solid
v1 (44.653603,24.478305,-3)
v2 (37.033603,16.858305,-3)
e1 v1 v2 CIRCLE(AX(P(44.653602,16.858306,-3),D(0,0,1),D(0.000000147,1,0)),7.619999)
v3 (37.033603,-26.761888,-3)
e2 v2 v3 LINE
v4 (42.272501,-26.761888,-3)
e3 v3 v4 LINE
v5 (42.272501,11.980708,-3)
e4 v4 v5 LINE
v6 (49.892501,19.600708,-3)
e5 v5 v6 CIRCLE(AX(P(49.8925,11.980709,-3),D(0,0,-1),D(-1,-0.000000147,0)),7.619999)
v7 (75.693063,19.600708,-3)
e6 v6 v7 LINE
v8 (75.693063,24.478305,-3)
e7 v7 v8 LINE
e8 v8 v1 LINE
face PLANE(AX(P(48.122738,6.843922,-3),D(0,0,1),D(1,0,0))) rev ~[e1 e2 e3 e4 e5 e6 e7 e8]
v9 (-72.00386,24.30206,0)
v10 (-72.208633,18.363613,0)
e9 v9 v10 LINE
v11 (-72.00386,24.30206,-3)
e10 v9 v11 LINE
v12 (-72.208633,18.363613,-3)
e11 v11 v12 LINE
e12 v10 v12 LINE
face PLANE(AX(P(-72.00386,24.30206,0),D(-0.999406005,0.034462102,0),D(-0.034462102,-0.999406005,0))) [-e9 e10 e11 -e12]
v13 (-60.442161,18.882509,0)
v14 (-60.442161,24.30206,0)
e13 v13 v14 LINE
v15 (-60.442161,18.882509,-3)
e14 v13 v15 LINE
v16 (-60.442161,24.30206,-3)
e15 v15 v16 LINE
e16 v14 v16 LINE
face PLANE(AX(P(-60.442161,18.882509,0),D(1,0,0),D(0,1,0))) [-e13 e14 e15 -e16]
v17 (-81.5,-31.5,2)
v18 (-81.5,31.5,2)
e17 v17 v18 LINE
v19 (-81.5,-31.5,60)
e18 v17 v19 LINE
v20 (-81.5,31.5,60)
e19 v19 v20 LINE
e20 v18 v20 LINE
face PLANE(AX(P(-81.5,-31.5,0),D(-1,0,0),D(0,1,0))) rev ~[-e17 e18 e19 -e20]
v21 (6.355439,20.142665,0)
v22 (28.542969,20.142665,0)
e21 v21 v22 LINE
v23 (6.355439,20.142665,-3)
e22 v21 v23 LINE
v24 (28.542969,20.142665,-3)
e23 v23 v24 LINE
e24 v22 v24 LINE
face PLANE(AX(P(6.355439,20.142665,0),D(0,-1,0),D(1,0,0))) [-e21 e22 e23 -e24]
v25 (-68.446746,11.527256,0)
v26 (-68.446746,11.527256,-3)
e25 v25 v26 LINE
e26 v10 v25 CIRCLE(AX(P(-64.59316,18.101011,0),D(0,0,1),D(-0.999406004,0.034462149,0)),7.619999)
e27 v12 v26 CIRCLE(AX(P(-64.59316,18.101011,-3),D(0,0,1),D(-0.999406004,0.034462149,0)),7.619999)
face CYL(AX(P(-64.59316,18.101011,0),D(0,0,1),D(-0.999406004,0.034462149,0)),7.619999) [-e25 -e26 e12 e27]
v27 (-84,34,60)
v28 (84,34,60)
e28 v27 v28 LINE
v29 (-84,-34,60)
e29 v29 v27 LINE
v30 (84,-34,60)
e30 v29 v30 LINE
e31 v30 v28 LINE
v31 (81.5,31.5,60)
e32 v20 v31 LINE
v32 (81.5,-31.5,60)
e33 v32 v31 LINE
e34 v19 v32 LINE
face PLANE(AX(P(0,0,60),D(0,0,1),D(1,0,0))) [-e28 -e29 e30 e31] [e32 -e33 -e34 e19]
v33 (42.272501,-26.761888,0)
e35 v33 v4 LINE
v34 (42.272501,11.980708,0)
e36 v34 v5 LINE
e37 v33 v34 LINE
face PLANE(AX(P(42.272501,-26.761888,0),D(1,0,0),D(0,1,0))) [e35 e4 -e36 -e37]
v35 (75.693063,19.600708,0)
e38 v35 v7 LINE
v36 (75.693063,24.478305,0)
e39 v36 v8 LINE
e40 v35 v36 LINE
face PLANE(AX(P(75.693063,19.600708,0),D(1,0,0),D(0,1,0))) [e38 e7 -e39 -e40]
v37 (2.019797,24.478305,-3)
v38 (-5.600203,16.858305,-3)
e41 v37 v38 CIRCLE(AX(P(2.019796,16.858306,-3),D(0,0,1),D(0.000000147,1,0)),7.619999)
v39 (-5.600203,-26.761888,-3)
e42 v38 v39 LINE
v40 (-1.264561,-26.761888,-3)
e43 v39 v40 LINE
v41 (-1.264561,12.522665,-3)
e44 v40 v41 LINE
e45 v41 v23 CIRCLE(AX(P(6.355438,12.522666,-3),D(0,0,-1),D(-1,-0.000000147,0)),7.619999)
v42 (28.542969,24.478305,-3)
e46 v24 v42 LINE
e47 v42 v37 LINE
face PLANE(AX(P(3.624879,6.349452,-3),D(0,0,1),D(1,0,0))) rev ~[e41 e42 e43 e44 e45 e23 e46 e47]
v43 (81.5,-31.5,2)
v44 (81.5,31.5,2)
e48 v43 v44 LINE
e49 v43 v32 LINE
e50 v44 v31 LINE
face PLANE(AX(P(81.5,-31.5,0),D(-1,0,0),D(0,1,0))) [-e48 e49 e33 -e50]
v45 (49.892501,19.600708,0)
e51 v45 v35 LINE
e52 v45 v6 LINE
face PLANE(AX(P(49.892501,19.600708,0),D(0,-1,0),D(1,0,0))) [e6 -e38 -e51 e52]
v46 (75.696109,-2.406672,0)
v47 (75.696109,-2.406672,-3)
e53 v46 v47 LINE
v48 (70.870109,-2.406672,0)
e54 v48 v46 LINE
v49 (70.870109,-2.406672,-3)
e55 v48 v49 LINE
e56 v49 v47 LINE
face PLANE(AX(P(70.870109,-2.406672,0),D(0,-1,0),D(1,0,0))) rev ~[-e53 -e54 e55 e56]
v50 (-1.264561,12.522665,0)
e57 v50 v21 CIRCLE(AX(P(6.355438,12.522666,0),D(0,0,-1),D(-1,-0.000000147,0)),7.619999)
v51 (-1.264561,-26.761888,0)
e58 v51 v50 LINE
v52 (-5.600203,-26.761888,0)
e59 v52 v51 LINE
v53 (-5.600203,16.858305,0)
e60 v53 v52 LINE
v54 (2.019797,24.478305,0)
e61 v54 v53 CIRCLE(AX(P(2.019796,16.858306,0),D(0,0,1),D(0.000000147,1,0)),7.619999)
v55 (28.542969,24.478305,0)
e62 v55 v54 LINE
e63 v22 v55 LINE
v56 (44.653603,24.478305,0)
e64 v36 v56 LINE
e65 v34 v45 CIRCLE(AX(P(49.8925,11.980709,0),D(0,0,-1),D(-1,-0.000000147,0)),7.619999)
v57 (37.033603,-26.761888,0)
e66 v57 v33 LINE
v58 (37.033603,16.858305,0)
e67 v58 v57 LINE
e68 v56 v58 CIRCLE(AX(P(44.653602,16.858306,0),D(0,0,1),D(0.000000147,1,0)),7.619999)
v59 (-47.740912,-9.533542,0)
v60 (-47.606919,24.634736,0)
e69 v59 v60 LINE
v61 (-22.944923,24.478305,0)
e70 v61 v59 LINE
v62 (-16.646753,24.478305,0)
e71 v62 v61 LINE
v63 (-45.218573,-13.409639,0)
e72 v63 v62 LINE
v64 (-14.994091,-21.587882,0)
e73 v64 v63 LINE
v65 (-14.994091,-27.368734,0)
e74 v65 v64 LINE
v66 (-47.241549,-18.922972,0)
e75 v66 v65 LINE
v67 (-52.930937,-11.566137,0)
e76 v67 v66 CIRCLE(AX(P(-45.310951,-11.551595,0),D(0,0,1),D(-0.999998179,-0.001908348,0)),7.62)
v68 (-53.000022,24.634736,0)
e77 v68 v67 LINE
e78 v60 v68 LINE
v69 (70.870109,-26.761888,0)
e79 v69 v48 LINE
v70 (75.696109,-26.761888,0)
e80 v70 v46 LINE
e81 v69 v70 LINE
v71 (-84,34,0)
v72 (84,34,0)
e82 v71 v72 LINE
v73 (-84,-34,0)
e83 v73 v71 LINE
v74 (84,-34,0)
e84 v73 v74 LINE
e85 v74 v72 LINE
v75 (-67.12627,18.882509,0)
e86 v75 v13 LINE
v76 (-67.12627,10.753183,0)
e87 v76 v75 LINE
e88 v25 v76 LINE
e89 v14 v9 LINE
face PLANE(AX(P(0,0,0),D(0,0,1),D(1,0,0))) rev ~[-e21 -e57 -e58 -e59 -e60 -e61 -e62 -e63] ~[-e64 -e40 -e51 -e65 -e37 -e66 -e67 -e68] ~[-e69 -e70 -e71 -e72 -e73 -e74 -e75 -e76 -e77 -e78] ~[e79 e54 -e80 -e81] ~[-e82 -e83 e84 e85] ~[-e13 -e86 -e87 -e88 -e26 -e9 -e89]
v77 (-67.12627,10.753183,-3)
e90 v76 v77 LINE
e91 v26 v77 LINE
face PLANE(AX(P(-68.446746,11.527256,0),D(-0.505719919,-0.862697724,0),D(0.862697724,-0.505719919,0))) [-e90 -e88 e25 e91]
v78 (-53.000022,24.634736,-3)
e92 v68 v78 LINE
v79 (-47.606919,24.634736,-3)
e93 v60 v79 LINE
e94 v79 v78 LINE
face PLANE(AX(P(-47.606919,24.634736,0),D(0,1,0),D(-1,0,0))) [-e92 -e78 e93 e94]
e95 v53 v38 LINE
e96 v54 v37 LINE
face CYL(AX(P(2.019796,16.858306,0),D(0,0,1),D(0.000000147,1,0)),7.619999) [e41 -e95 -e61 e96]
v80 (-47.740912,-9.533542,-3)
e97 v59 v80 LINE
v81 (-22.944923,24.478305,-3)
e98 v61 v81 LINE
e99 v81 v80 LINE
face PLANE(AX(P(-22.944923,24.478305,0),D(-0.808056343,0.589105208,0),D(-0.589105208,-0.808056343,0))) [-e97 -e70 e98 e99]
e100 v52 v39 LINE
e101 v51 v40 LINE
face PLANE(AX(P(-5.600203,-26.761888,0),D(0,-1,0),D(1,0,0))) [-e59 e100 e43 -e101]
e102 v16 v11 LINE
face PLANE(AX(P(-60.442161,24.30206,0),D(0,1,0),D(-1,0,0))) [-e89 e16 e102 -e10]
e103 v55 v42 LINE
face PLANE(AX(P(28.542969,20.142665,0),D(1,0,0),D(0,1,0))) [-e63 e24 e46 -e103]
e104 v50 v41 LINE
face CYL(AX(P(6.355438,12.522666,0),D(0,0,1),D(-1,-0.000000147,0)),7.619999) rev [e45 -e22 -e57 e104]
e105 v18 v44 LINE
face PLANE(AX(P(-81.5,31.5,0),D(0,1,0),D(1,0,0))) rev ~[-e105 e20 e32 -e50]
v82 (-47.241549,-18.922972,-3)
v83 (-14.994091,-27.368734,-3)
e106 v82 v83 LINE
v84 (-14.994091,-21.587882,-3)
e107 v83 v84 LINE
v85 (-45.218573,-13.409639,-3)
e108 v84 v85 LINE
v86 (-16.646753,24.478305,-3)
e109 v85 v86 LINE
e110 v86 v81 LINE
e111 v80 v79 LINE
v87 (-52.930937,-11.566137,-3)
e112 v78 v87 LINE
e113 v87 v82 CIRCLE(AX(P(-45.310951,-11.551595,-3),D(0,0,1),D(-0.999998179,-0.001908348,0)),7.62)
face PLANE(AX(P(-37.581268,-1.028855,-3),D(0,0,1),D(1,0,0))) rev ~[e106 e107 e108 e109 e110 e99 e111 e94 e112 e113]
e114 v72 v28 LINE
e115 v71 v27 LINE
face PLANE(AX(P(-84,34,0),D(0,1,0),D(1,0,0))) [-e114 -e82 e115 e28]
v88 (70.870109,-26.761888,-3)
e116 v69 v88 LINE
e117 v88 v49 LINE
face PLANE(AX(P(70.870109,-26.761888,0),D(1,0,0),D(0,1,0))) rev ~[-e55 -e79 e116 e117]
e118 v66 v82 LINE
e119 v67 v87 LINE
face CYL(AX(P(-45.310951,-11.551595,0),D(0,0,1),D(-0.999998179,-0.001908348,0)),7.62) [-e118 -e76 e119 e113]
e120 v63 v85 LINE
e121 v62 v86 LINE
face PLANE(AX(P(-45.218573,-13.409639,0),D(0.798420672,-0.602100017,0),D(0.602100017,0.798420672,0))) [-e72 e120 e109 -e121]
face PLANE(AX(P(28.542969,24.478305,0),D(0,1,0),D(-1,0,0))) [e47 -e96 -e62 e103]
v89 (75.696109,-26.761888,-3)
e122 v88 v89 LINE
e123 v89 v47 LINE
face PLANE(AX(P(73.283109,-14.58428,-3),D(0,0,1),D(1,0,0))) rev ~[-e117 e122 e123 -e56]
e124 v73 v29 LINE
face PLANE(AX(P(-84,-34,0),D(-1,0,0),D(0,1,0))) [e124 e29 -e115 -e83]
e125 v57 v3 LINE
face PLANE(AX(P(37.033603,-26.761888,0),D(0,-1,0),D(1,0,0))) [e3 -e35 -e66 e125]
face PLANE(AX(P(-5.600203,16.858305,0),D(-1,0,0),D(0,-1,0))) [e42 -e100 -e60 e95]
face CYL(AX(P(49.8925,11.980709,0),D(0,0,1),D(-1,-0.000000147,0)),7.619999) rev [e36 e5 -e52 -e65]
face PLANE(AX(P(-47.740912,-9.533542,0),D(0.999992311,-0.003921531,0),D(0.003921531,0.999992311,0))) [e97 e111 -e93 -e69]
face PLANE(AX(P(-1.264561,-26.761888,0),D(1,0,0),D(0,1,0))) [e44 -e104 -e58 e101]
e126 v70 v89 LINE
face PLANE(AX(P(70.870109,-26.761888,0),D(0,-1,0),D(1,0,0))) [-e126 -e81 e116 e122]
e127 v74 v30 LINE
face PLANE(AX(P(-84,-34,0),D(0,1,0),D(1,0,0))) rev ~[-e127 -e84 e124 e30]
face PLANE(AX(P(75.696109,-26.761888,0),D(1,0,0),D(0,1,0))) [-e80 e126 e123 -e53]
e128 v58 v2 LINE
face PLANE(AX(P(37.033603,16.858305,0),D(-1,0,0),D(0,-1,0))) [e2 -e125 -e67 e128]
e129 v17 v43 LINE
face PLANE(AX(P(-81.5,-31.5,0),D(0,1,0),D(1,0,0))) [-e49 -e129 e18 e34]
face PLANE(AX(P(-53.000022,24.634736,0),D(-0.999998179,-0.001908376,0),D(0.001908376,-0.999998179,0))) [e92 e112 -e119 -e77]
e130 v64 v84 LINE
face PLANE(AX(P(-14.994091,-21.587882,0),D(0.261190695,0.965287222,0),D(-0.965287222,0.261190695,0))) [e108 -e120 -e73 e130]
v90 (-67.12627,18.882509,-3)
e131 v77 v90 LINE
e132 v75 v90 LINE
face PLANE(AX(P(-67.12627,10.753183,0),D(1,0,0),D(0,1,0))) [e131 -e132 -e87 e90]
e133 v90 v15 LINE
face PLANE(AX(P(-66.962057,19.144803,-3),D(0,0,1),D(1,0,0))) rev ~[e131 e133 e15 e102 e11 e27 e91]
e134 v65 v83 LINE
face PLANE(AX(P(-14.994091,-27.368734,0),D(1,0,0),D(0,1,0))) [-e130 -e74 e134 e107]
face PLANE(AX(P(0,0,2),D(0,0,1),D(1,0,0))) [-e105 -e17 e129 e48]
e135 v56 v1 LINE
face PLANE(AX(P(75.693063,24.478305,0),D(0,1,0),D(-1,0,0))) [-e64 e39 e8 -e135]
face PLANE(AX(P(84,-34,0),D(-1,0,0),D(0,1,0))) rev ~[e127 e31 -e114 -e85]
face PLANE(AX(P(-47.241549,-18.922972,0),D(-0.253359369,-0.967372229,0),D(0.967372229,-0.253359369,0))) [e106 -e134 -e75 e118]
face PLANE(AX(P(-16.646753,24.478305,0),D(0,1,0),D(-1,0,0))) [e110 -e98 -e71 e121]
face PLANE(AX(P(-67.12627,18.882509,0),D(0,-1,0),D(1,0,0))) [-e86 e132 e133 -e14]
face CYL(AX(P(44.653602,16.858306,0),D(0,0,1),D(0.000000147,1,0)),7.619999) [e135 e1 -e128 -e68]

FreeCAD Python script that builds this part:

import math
import FreeCAD as App
import Part
import Sketcher
from FreeCAD import Vector


def add_polygon(sketch, points):
    """Adds a closed chain of lines whose ends are joined by coincident constraints."""
    first, n = sketch.GeometryCount, len(points)
    for a, b in zip(points, points[1:] + points[:1]):
        sketch.addGeometry(Part.LineSegment(App.Vector(*a, 0), App.Vector(*b, 0)), False)
    for i in range(n):
        sketch.addConstraint(Sketcher.Constraint("Coincident", first + i, 2, first + (i + 1) % n, 1))

doc = App.newDocument("Part")
body = doc.addObject("PartDesign::Body", "Body")

# Sketch on XY plane
sketch1 = body.newObject("Sketcher::SketchObject", "Sketch")
sketch1.AttachmentSupport = (doc.getObject("XY_Plane"), [""])
sketch1.MapMode = "FlatFace"
add_polygon(sketch1, [(-84, 34), (-84, -34), (84, -34), (84, 34)])  # lines 0-3
add_polygon(sketch1, [(81.5, -31.5), (-81.5, -31.5), (-81.5, 31.5), (81.5, 31.5)])  # lines 4-7
sketch1.addConstraint([
    Sketcher.Constraint("Vertical", 0),
    Sketcher.Constraint("Horizontal", 1),
    Sketcher.Constraint("Vertical", 2),
    Sketcher.Constraint("Horizontal", 3),
    Sketcher.Constraint("Horizontal", 4),
    Sketcher.Constraint("Vertical", 5),
    Sketcher.Constraint("Horizontal", 6),
    Sketcher.Constraint("Vertical", 7),
    Sketcher.Constraint("Symmetric", 0, 2, 2, 2, -1, 1),
    Sketcher.Constraint("Symmetric", 4, 2, 6, 2, -1, 1),
    Sketcher.Constraint("DistanceX", 1, 1, 1, 2, 168.0),
    Sketcher.Constraint("DistanceX", 4, 2, 4, 1, 163.0),
    Sketcher.Constraint("DistanceY", 0, 2, 0, 1, 68.0),
    Sketcher.Constraint("DistanceY", 5, 1, 5, 2, 63.0),
])
pad1 = body.newObject("PartDesign::Pad", "Pad")
pad1.Profile = sketch1
pad1.Length = 60

# Sketch on XY plane
sketch2 = body.newObject("Sketcher::SketchObject", "Sketch001")
sketch2.AttachmentSupport = (doc.getObject("XY_Plane"), [""])
sketch2.MapMode = "FlatFace"
add_polygon(sketch2, [(-81.5, 31.5), (-81.5, -31.5), (81.5, -31.5), (81.5, 31.5)])  # lines 0-3
sketch2.addConstraint([
    Sketcher.Constraint("Vertical", 0),
    Sketcher.Constraint("Horizontal", 1),
    Sketcher.Constraint("Vertical", 2),
    Sketcher.Constraint("Horizontal", 3),
    Sketcher.Constraint("Symmetric", 0, 2, 2, 2, -1, 1),
    Sketcher.Constraint("DistanceX", 1, 1, 1, 2, 163.0),
    Sketcher.Constraint("DistanceY", 0, 2, 0, 1, 63.0),
])
pad2 = body.newObject("PartDesign::Pad", "Pad001")
pad2.Profile = sketch2
pad2.Length = 2

# Sketch on XY plane
sketch3 = body.newObject("Sketcher::SketchObject", "Sketch002")
sketch3.AttachmentSupport = (doc.getObject("XY_Plane"), [""])
sketch3.MapMode = "FlatFace"
sketch3.addGeometry(Part.LineSegment(Vector(-60.442161, 24.30206, 0), Vector(-72.00386, 24.30206, 0)), False)  # 0
sketch3.addGeometry(Part.LineSegment(Vector(-72.00386, 24.30206, 0), Vector(-72.208633, 18.363613, 0)), False)  # 1
sketch3.addGeometry(Part.ArcOfCircle(Part.Circle(Vector(-64.59316, 18.101011, 0), Vector(0, 0, 1), 7.619999), math.radians(178.025073), math.radians(239.620842)), False)  # 2
sketch3.addGeometry(Part.LineSegment(Vector(-68.446746, 11.527256, 0), Vector(-67.12627, 10.753183, 0)), False)  # 3
sketch3.addGeometry(Part.LineSegment(Vector(-67.12627, 10.753183, 0), Vector(-67.12627, 18.882509, 0)), False)  # 4
sketch3.addGeometry(Part.LineSegment(Vector(-67.12627, 18.882509, 0), Vector(-60.442161, 18.882509, 0)), False)  # 5
sketch3.addGeometry(Part.LineSegment(Vector(-60.442161, 18.882509, 0), Vector(-60.442161, 24.30206, 0)), False)  # 6
sketch3.addGeometry(Part.LineSegment(Vector(-47.606919, 24.634736, 0), Vector(-53.000022, 24.634736, 0)), False)  # 7
sketch3.addGeometry(Part.LineSegment(Vector(-53.000022, 24.634736, 0), Vector(-52.930937, -11.566137, 0)), False)  # 8
sketch3.addGeometry(Part.ArcOfCircle(Part.Circle(Vector(-45.310951, -11.551595, 0), Vector(0, 0, 1), 7.62), math.radians(-179.89066), math.radians(-104.676391)), False)  # 9
sketch3.addGeometry(Part.LineSegment(Vector(-47.241549, -18.922972, 0), Vector(-14.994091, -27.368734, 0)), False)  # 10
sketch3.addGeometry(Part.LineSegment(Vector(-14.994091, -27.368734, 0), Vector(-14.994091, -21.587882, 0)), False)  # 11
sketch3.addGeometry(Part.LineSegment(Vector(-14.994091, -21.587882, 0), Vector(-45.218573, -13.409639, 0)), False)  # 12
sketch3.addGeometry(Part.LineSegment(Vector(-45.218573, -13.409639, 0), Vector(-16.646753, 24.478305, 0)), False)  # 13
sketch3.addGeometry(Part.LineSegment(Vector(-16.646753, 24.478305, 0), Vector(-22.944923, 24.478305, 0)), False)  # 14
sketch3.addGeometry(Part.LineSegment(Vector(-22.944923, 24.478305, 0), Vector(-47.740912, -9.533542, 0)), False)  # 15
sketch3.addGeometry(Part.LineSegment(Vector(-47.740912, -9.533542, 0), Vector(-47.606919, 24.634736, 0)), False)  # 16
sketch3.addGeometry(Part.LineSegment(Vector(-5.600203, 16.858305, 0), Vector(-5.600203, -26.761888, 0)), False)  # 17
sketch3.addGeometry(Part.LineSegment(Vector(-5.600203, -26.761888, 0), Vector(-1.264561, -26.761888, 0)), False)  # 18
sketch3.addGeometry(Part.LineSegment(Vector(-1.264561, -26.761888, 0), Vector(-1.264561, 12.522665, 0)), False)  # 19
sketch3.addGeometry(Part.ArcOfCircle(Part.Circle(Vector(6.355438, 12.522666, 0), Vector(0, 0, 1), 7.619999), math.radians(89.999992), math.radians(180.000008)), False)  # 20
sketch3.addGeometry(Part.LineSegment(Vector(6.355439, 20.142665, 0), Vector(28.542969, 20.142665, 0)), False)  # 21
sketch3.addGeometry(Part.LineSegment(Vector(28.542969, 20.142665, 0), Vector(28.542969, 24.478305, 0)), False)  # 22
sketch3.addGeometry(Part.LineSegment(Vector(28.542969, 24.478305, 0), Vector(2.019797, 24.478305, 0)), False)  # 23
sketch3.addGeometry(Part.ArcOfCircle(Part.Circle(Vector(2.019796, 16.858306, 0), Vector(0, 0, 1), 7.619999), math.radians(89.999992), math.radians(180.000008)), False)  # 24
sketch3.addGeometry(Part.ArcOfCircle(Part.Circle(Vector(44.653602, 16.858306, 0), Vector(0, 0, 1), 7.619999), math.radians(89.999992), math.radians(180.000008)), False)  # 25
sketch3.addGeometry(Part.LineSegment(Vector(37.033603, 16.858305, 0), Vector(37.033603, -26.761888, 0)), False)  # 26
sketch3.addGeometry(Part.LineSegment(Vector(37.033603, -26.761888, 0), Vector(42.272501, -26.761888, 0)), False)  # 27
sketch3.addGeometry(Part.LineSegment(Vector(42.272501, -26.761888, 0), Vector(42.272501, 11.980708, 0)), False)  # 28
sketch3.addGeometry(Part.ArcOfCircle(Part.Circle(Vector(49.8925, 11.980709, 0), Vector(0, 0, 1), 7.619999), math.radians(89.999992), math.radians(180.000008)), False)  # 29
sketch3.addGeometry(Part.LineSegment(Vector(49.892501, 19.600708, 0), Vector(75.693063, 19.600708, 0)), False)  # 30
sketch3.addGeometry(Part.LineSegment(Vector(75.693063, 19.600708, 0), Vector(75.693063, 24.478305, 0)), False)  # 31
sketch3.addGeometry(Part.LineSegment(Vector(75.693063, 24.478305, 0), Vector(44.653603, 24.478305, 0)), False)  # 32
add_polygon(sketch3, [(70.870109, -2.406672), (70.870109, -26.761888), (75.696109, -26.761888), (75.696109, -2.406672)])  # lines 33-36
sketch3.addConstraint([
    Sketcher.Constraint("Coincident", 0, 2, 1, 1),
    Sketcher.Constraint("Coincident", 1, 2, 2, 1),
    Sketcher.Constraint("Coincident", 2, 2, 3, 1),
    Sketcher.Constraint("Coincident", 3, 2, 4, 1),
    Sketcher.Constraint("Coincident", 4, 2, 5, 1),
    Sketcher.Constraint("Coincident", 5, 2, 6, 1),
    Sketcher.Constraint("Coincident", 6, 2, 0, 1),
    Sketcher.Constraint("Coincident", 7, 2, 8, 1),
    Sketcher.Constraint("Coincident", 8, 2, 9, 1),
    Sketcher.Constraint("Coincident", 9, 2, 10, 1),
    Sketcher.Constraint("Coincident", 10, 2, 11, 1),
    Sketcher.Constraint("Coincident", 11, 2, 12, 1),
    Sketcher.Constraint("Coincident", 12, 2, 13, 1),
    Sketcher.Constraint("Coincident", 13, 2, 14, 1),
    Sketcher.Constraint("Coincident", 14, 2, 15, 1),
    Sketcher.Constraint("Coincident", 15, 2, 16, 1),
    Sketcher.Constraint("Coincident", 16, 2, 7, 1),
    Sketcher.Constraint("Coincident", 17, 2, 18, 1),
    Sketcher.Constraint("Coincident", 18, 2, 19, 1),
    Sketcher.Constraint("Coincident", 19, 2, 20, 2),
    Sketcher.Constraint("Coincident", 20, 1, 21, 1),
    Sketcher.Constraint("Coincident", 21, 2, 22, 1),
    Sketcher.Constraint("Coincident", 22, 2, 23, 1),
    Sketcher.Constraint("Coincident", 23, 2, 24, 1),
    Sketcher.Constraint("Coincident", 24, 2, 17, 1),
    Sketcher.Constraint("Coincident", 25, 2, 26, 1),
    Sketcher.Constraint("Coincident", 26, 2, 27, 1),
    Sketcher.Constraint("Coincident", 27, 2, 28, 1),
    Sketcher.Constraint("Coincident", 28, 2, 29, 2),
    Sketcher.Constraint("Coincident", 29, 1, 30, 1),
    Sketcher.Constraint("Coincident", 30, 2, 31, 1),
    Sketcher.Constraint("Coincident", 31, 2, 32, 1),
    Sketcher.Constraint("Coincident", 32, 2, 25, 1),
    Sketcher.Constraint("Horizontal", 0),
    Sketcher.Constraint("Vertical", 4),
    Sketcher.Constraint("Horizontal", 5),
    Sketcher.Constraint("Vertical", 6),
    Sketcher.Constraint("Horizontal", 7),
    Sketcher.Constraint("Vertical", 11),
    Sketcher.Constraint("Horizontal", 14),
    Sketcher.Constraint("Vertical", 17),
    Sketcher.Constraint("Horizontal", 18),
    Sketcher.Constraint("Vertical", 19),
    Sketcher.Constraint("Horizontal", 21),
    Sketcher.Constraint("Vertical", 22),
    Sketcher.Constraint("Horizontal", 23),
    Sketcher.Constraint("Vertical", 26),
    Sketcher.Constraint("Horizontal", 27),
    Sketcher.Constraint("Vertical", 28),
    Sketcher.Constraint("Horizontal", 30),
    Sketcher.Constraint("Vertical", 31),
    Sketcher.Constraint("Horizontal", 32),
    Sketcher.Constraint("Vertical", 33),
    Sketcher.Constraint("Horizontal", 34),
    Sketcher.Constraint("Vertical", 35),
    Sketcher.Constraint("Horizontal", 36),
    Sketcher.Constraint("Radius", 2, 7.619999),
    Sketcher.Constraint("Radius", 9, 7.62),
    Sketcher.Constraint("Radius", 20, 7.619999),
    Sketcher.Constraint("Radius", 24, 7.619999),
    Sketcher.Constraint("Radius", 25, 7.619999),
    Sketcher.Constraint("Radius", 29, 7.619999),
    Sketcher.Constraint("DistanceX", 34, 1, 34, 2, 4.826),
    Sketcher.Constraint("DistanceY", 24, 3, 13, 2, 7.619999),
    Sketcher.Constraint("DistanceX", 19, 2, 20, 1, 7.62),
    Sketcher.Constraint("DistanceY", 19, 2, 20, 1, 7.62),
    Sketcher.Constraint("DistanceY", 25, 3, 22, 2, 7.619999),
    Sketcher.Constraint("DistanceX", 24, 2, 23, 2, 7.62),
    Sketcher.Constraint("DistanceY", 24, 2, 23, 2, 7.62),
    Sketcher.Constraint("DistanceY", 25, 2, 22, 2, 7.62),
    Sketcher.Constraint("DistanceX", 28, 2, 29, 1, 7.62),
    Sketcher.Constraint("DistanceY", 28, 2, 29, 1, 7.62),
    Sketcher.Constraint("DistanceX", 25, 2, 32, 2, 7.62),
    Sketcher.Constraint("DistanceX", 0, 2, 0, 1, 11.561699),
    Sketcher.Constraint("DistanceX", 2, 3, 5, 2, 4.150999),
    Sketcher.Constraint("DistanceX", 5, 1, 5, 2, 6.684109),
    Sketcher.Constraint("DistanceX", 14, 2, 14, 1, 6.29817),
    Sketcher.Constraint("DistanceX", 21, 1, 21, 2, 22.18753),
    Sketcher.Constraint("DistanceX", 23, 2, 23, 1, 26.523172),
    Sketcher.Constraint("DistanceX", 30, 1, 30, 2, 25.800562),
    Sketcher.Constraint("DistanceX", 32, 2, 32, 1, 31.03946),
    Sketcher.Constraint("DistanceY", 6, 1, 6, 2, 5.419551),
    Sketcher.Constraint("DistanceY", 11, 1, 11, 2, 5.780852),
    Sketcher.Constraint("DistanceY", 22, 1, 22, 2, 4.33564),
    Sketcher.Constraint("DistanceX", -1, 1, 25, 3, 44.653602),
    Sketcher.Constraint("DistanceX", 2, 3, 20, 3, 70.948598),
    Sketcher.Constraint("DistanceY", 9, 3, 24, 3, 28.409902),
    Sketcher.Constraint("DistanceY", 2, 3, 1, 2, 0.262602),
    Sketcher.Constraint("DistanceX", 9, 2, 9, 3, 1.930598),
    Sketcher.Constraint("DistanceY", 10, 2, 20, 3, 39.8914),
    Sketcher.Constraint("DistanceX", 7, 2, 14, 2, 30.055099),
    Sketcher.Constraint("DistanceY", 28, 2, 25, 3, 4.877598),
    Sketcher.Constraint("Distance", 8, 36.200939),
    Sketcher.Constraint("Distance", 10, 33.335108),
    Sketcher.Constraint("Distance", 13, 47.453611),
    Sketcher.Constraint("Distance", 16, 34.168541),
    Sketcher.Constraint("DistanceX", 7, 2, 7, 1, 5.393103),
    Sketcher.Constraint("DistanceY", 4, 1, 4, 2, 8.129326),
    Sketcher.Constraint("DistanceY", 17, 2, 17, 1, 43.620193),
    Sketcher.Constraint("DistanceY", 26, 2, 26, 1, 43.620193),
    Sketcher.Constraint("DistanceY", 33, 2, 33, 1, 24.355216),
    Sketcher.Constraint("DistanceX", 2, 3, -1, 1, 64.59316),
    Sketcher.Constraint("DistanceY", -1, 1, 2, 3, 18.101011),
    Sketcher.Constraint("DistanceX", 9, 3, -1, 1, 45.310951),
    Sketcher.Constraint("DistanceY", -1, 1, 29, 3, 11.980709),
    Sketcher.Constraint("DistanceY", -1, 1, 0, 2, 24.30206),
    Sketcher.Constraint("DistanceY", 12, 2, -1, 1, 13.409639),
    Sketcher.Constraint("DistanceX", 16, 2, -1, 1, 47.606919),
    Sketcher.Constraint("DistanceX", -1, 1, 33, 2, 70.870109),
    Sketcher.Constraint("DistanceY", 35, 2, -1, 1, 2.406672),
    Sketcher.Constraint("DistanceY", 9, 3, 2, 2, 23.078851),
    Sketcher.Constraint("DistanceY", 8, 2, 9, 3, 0.014542),
    Sketcher.Constraint("DistanceX", 15, 2, 9, 3, 2.429961),
])
pad3 = body.newObject("PartDesign::Pad", "Pad002")
pad3.Profile = sketch3
pad3.Length = 3
pad3.Reversed = True

doc.recompute()
